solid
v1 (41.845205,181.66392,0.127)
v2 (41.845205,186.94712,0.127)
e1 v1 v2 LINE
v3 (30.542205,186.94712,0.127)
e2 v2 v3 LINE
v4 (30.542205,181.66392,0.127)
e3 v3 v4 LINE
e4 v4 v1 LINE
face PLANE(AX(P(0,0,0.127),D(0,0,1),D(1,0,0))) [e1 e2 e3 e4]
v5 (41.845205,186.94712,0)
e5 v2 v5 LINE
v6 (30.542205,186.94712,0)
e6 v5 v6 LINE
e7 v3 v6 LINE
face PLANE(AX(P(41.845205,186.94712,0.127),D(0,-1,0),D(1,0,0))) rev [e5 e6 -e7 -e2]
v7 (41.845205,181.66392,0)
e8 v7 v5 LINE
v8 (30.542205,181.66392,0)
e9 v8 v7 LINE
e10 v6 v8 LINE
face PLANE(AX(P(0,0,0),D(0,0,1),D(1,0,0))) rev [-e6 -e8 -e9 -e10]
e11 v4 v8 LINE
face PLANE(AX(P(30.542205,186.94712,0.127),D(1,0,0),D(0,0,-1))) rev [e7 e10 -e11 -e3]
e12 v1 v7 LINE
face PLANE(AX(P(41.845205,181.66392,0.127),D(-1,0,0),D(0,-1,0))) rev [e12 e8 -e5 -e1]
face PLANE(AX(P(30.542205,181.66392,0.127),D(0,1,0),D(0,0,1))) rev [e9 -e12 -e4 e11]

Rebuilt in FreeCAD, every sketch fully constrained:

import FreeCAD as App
import Part
import Sketcher
Q = App.Units.Quantity


def add_polygon(sketch, points):
    """Adds a closed chain of lines whose ends are joined by coincident constraints."""
    first, n = sketch.GeometryCount, len(points)
    for a, b in zip(points, points[1:] + points[:1]):
        sketch.addGeometry(Part.LineSegment(App.Vector(*a, 0), App.Vector(*b, 0)), False)
    for i in range(n):
        sketch.addConstraint(Sketcher.Constraint("Coincident", first + i, 2, first + (i + 1) % n, 1))

doc = App.newDocument("Part")
body = doc.addObject("PartDesign::Body", "Body")

# Sketch on XY plane
sketch1 = body.newObject("Sketcher::SketchObject", "Sketch")
sketch1.AttachmentSupport = (doc.getObject("XY_Plane"), [""])
sketch1.MapMode = "FlatFace"
add_polygon(sketch1, [(30.542205, 186.94712), (30.542205, 181.66392), (41.845205, 181.66392), (41.845205, 186.94712)])  # lines 0-3
sketch1.addConstraint([
    Sketcher.Constraint("Vertical", 0),
    Sketcher.Constraint("Horizontal", 1),
    Sketcher.Constraint("Vertical", 2),
    Sketcher.Constraint("Horizontal", 3),
    Sketcher.Constraint("DistanceX", 1, 1, 1, 2, Q("0.445 in")),
    Sketcher.Constraint("DistanceY", 0, 2, 0, 1, Q("0.208 in")),
    Sketcher.Constraint("DistanceY", -1, 1, 0, 2, 181.66392),
    Sketcher.Constraint("DistanceX", -1, 1, 0, 2, 30.542205),
])
pad1 = body.newObject("PartDesign::Pad", "Pad")
pad1.Profile = sketch1
pad1.Length = Q("0.005 in")

doc.recompute()
